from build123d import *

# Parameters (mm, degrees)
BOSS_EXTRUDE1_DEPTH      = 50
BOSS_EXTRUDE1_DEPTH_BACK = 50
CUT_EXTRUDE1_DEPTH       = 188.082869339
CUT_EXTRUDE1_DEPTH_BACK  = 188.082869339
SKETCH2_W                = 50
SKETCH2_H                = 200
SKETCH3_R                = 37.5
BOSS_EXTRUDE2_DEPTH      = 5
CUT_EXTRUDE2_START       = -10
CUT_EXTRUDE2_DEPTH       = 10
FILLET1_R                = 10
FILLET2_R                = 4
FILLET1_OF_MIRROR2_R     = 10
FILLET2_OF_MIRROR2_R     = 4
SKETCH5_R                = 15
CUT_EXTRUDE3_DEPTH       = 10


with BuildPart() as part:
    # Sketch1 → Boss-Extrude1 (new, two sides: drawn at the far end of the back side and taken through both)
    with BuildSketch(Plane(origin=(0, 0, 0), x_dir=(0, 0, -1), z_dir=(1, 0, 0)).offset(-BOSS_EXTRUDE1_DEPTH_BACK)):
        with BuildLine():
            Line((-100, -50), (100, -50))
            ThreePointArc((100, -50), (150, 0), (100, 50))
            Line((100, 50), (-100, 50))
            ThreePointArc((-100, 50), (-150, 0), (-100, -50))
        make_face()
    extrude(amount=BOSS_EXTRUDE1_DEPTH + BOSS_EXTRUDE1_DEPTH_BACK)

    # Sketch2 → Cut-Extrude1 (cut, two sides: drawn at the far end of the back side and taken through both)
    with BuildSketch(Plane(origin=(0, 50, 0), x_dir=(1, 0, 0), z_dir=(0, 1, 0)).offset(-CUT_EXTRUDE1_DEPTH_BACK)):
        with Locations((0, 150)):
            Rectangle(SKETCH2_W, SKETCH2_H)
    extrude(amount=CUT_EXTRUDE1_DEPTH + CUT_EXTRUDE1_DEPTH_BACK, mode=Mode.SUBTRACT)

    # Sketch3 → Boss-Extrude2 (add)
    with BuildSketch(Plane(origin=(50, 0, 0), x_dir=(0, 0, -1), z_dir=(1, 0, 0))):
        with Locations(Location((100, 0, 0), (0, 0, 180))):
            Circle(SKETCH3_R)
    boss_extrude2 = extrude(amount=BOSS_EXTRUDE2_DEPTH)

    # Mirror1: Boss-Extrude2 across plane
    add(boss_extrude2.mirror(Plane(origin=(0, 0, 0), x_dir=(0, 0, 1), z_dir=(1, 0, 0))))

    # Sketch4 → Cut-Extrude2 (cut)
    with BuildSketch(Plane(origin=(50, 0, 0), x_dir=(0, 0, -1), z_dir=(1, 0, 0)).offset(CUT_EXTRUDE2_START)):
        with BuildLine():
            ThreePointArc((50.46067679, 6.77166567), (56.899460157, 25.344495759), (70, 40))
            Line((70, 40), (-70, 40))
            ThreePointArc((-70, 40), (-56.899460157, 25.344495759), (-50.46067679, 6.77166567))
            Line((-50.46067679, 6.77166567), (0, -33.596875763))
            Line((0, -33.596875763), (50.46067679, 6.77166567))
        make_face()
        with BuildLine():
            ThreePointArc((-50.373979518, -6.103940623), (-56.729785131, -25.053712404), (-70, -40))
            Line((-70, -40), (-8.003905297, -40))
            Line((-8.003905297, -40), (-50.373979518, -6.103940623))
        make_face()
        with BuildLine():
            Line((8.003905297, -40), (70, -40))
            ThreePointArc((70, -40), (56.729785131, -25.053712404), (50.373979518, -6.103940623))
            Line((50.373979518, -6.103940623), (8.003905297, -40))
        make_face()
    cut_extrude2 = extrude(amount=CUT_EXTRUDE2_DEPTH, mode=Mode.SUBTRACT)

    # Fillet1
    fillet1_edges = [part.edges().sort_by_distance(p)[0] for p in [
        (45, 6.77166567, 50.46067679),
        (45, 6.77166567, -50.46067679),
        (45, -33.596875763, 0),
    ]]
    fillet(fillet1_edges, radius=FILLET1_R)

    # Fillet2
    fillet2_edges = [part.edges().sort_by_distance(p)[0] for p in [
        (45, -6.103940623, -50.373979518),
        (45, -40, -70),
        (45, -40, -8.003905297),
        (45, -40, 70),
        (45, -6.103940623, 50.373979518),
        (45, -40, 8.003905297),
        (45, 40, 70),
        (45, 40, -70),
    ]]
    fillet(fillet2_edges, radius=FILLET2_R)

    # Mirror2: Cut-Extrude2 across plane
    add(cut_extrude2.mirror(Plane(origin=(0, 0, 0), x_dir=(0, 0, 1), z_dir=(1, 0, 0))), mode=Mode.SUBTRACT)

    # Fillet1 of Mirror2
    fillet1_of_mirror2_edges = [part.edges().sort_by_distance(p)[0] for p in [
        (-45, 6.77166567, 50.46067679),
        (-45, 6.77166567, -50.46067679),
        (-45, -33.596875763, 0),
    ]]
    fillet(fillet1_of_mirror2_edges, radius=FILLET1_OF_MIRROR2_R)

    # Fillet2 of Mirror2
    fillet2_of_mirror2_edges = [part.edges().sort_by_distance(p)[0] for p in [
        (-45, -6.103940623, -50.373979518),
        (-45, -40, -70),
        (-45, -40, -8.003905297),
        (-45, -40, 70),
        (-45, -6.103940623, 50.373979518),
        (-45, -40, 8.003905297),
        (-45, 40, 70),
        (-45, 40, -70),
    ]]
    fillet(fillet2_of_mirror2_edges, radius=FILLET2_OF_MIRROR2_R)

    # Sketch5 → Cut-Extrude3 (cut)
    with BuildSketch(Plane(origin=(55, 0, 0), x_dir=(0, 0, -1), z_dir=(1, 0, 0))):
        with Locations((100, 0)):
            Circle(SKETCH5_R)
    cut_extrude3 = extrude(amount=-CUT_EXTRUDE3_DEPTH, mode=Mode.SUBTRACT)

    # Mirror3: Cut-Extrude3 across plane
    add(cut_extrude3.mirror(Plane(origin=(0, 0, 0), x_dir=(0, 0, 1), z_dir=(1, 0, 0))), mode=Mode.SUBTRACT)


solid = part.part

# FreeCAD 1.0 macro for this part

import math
import FreeCAD as App
import Part
import Sketcher
Q = App.Units.Quantity


def edges_at(feature, points):
    """Names of the edges that pass closest to the given points."""
    edges = feature.Shape.Edges
    near = lambda p: min(range(len(edges)), key=lambda i: edges[i].distToShape(Part.Vertex(*p))[0])
    return sorted({f"Edge{near(p) + 1}" for p in points})


def add_polygon(sketch, points):
    """Adds a closed chain of lines whose ends are joined by coincident constraints."""
    first, n = sketch.GeometryCount, len(points)
    for a, b in zip(points, points[1:] + points[:1]):
        sketch.addGeometry(Part.LineSegment(App.Vector(*a, 0), App.Vector(*b, 0)), False)
    for i in range(n):
        sketch.addConstraint(Sketcher.Constraint("Coincident", first + i, 2, first + (i + 1) % n, 1))

doc = App.newDocument("Part")
params = doc.addObject("Spreadsheet::Sheet", "Params")
for row, (alias, value) in enumerate([
    ("sketch1_radius", "50 mm"),
    ("sketch1_height", "200 mm"),
    ("pad1_length", "50 mm"),
    ("pad1_length2", "50 mm"),
    ("sketch2_width", "50 mm"),
    ("sketch2_height", "200 mm"),
    ("sketch3_diameter", "75 mm"),
    ("pad2_length", "5 mm"),
    ("sketch4_radius", "50 mm"),
    ("sketch4_height", "140 mm"),
    ("pocket2_length", "10 mm"),
    ("fillet_radius", "10 mm"),
    ("fillet2_radius", "4 mm"),
    ("fillet3_radius", "10 mm"),
    ("fillet4_radius", "4 mm"),
    ("sketch5_diameter", "30 mm"),
    ("pocket3_length", "10 mm"),
], start=1):
    params.set(f"A{row}", alias)
    params.set(f"B{row}", "=" + value)
    params.setAlias(f"B{row}", alias)

body = doc.addObject("PartDesign::Body", "Body")

sketch1 = doc.addObject("Sketcher::SketchObject", "Sketch")
body.addObject(sketch1)
sketch1.AttachmentSupport = (doc.YZ_Plane, [""])
sketch1.MapMode = "FlatFace"
sketch1.addGeometry(Part.LineSegment(App.Vector(-50, 100, 0), App.Vector(-50, -100, 0)), False)
sketch1.addGeometry(Part.ArcOfCircle(Part.Circle(App.Vector(0, -100, 0), App.Vector(0, 0, 1), 50), math.radians(180), math.radians(360)), False)
sketch1.addGeometry(Part.LineSegment(App.Vector(50, -100, 0), App.Vector(50, 100, 0)), False)
sketch1.addGeometry(Part.ArcOfCircle(Part.Circle(App.Vector(0, 100, 0), App.Vector(0, 0, 1), 50), math.radians(0), math.radians(180)), False)
sketch1.addConstraint(Sketcher.Constraint("Tangent", 0, 2, 1, 1))
sketch1.addConstraint(Sketcher.Constraint("Tangent", 1, 2, 2, 1))
sketch1.addConstraint(Sketcher.Constraint("Tangent", 2, 2, 3, 1))
sketch1.addConstraint(Sketcher.Constraint("Tangent", 3, 2, 0, 1))
sketch1.addConstraint(Sketcher.Constraint("Vertical", 0))
sketch1.addConstraint(Sketcher.Constraint("Vertical", 2))
sketch1.addConstraint(Sketcher.Constraint("Symmetric", 1, 3, 3, 3, -1, 1))
sketch1.addConstraint(Sketcher.Constraint("Radius", 1, Q("50 mm")))
sketch1.addConstraint(Sketcher.Constraint("DistanceY", 0, 2, 0, 1, Q("200 mm")))
sketch1.setExpression("Constraints[7]", "Params.sketch1_radius")
sketch1.setExpression("Constraints[8]", "Params.sketch1_height")
pad1 = doc.addObject("PartDesign::Pad", "Pad")
body.addObject(pad1)
pad1.Profile = sketch1
pad1.Type = "TwoLengths"
pad1.setExpression("Length", "Params.pad1_length")
pad1.setExpression("Length2", "Params.pad1_length2")

sketch2 = doc.addObject("Sketcher::SketchObject", "Sketch001")
body.addObject(sketch2)
sketch2.AttachmentSupport = (doc.XZ_Plane, [""])
sketch2.MapMode = "FlatFace"
sketch2.AttachmentOffset = App.Placement(App.Vector(0, 0, -50), App.Rotation())
add_polygon(sketch2, [(-25, -250), (-25, -50), (25, -50), (25, -250)])
sketch2.addConstraint(Sketcher.Constraint("Vertical", 0))
sketch2.addConstraint(Sketcher.Constraint("Horizontal", 1))
sketch2.addConstraint(Sketcher.Constraint("Vertical", 2))
sketch2.addConstraint(Sketcher.Constraint("Horizontal", 3))
sketch2.addConstraint(Sketcher.Constraint("DistanceX", 1, 1, 1, 2, Q("50 mm")))
sketch2.addConstraint(Sketcher.Constraint("DistanceY", 0, 1, 0, 2, Q("200 mm")))
sketch2.addConstraint(Sketcher.Constraint("DistanceX", 0, 2, -1, 1, Q("25 mm")))
sketch2.addConstraint(Sketcher.Constraint("DistanceY", 0, 2, -1, 1, Q("50 mm")))
sketch2.setExpression("Constraints[8]", "Params.sketch2_width")
sketch2.setExpression("Constraints[9]", "Params.sketch2_height")
pocket1 = doc.addObject("PartDesign::Pocket", "Pocket")
body.addObject(pocket1)
pocket1.Profile = sketch2
pocket1.Type = "ThroughAll"
pocket1.Midplane = True

sketch3 = doc.addObject("Sketcher::SketchObject", "Sketch002")
body.addObject(sketch3)
sketch3.AttachmentSupport = (doc.YZ_Plane, [""])
sketch3.MapMode = "FlatFace"
sketch3.AttachmentOffset = App.Placement(App.Vector(0, 0, 50), App.Rotation())
sketch3.addGeometry(Part.Circle(App.Vector(0, -100, 0), App.Vector(0, 0, 1), 38), False)
sketch3.addConstraint(Sketcher.Constraint("PointOnObject", 0, 3, -2))
sketch3.addConstraint(Sketcher.Constraint("Diameter", 0, Q("75 mm")))
sketch3.addConstraint(Sketcher.Constraint("DistanceY", 0, 3, -1, 1, Q("100 mm")))
sketch3.setExpression("Constraints[1]", "Params.sketch3_diameter")
pad2 = doc.addObject("PartDesign::Pad", "Pad001")
body.addObject(pad2)
pad2.Profile = sketch3
pad2.setExpression("Length", "Params.pad2_length")
doc.recompute()

mirrored = doc.addObject("PartDesign::Mirrored", "Mirrored")
body.addObject(mirrored)
mirrored.Originals = [pad2]
mirrored.MirrorPlane = (doc.YZ_Plane, [""])
body.Tip = mirrored

sketch4 = doc.addObject("Sketcher::SketchObject", "Sketch003")
body.addObject(sketch4)
sketch4.AttachmentSupport = (doc.YZ_Plane, [""])
sketch4.MapMode = "FlatFace"
sketch4.AttachmentOffset = App.Placement(App.Vector(0, 0, 40), App.Rotation())
sketch4.addGeometry(Part.ArcOfCircle(Part.Circle(App.Vector(0, -100, 0), App.Vector(0, 0, 1), 50), math.radians(37), math.radians(82)), False)
sketch4.addGeometry(Part.LineSegment(App.Vector(40, -70, 0), App.Vector(40, 70, 0)), False)
sketch4.addGeometry(Part.ArcOfCircle(Part.Circle(App.Vector(0, 100, 0), App.Vector(0, 0, 1), 50), math.radians(-82), math.radians(-37)), False)
sketch4.addGeometry(Part.LineSegment(App.Vector(7, 50, 0), App.Vector(-34, 0, 0)), False)
sketch4.addGeometry(Part.LineSegment(App.Vector(-34, 0, 0), App.Vector(7, -50, 0)), False)
sketch4.addGeometry(Part.ArcOfCircle(Part.Circle(App.Vector(0, 100, 0), App.Vector(0, 0, 1), 50), math.radians(-143), math.radians(-97)), False)
sketch4.addGeometry(Part.LineSegment(App.Vector(-40, 70, 0), App.Vector(-40, 8, 0)), False)
sketch4.addGeometry(Part.LineSegment(App.Vector(-40, 8, 0), App.Vector(-6, 50, 0)), False)
sketch4.addGeometry(Part.LineSegment(App.Vector(-40, -8, 0), App.Vector(-40, -70, 0)), False)
sketch4.addGeometry(Part.ArcOfCircle(Part.Circle(App.Vector(0, -100, 0), App.Vector(0, 0, 1), 50), math.radians(97), math.radians(143)), False)
sketch4.addGeometry(Part.LineSegment(App.Vector(-6, -50, 0), App.Vector(-40, -8, 0)), False)
sketch4.addConstraint(Sketcher.Constraint("Coincident", 0, 1, 1, 1))
sketch4.addConstraint(Sketcher.Constraint("Coincident", 1, 2, 2, 2))
sketch4.addConstraint(Sketcher.Constraint("Coincident", 2, 1, 3, 1))
sketch4.addConstraint(Sketcher.Constraint("Coincident", 3, 2, 4, 1))
sketch4.addConstraint(Sketcher.Constraint("Coincident", 4, 2, 0, 2))
sketch4.addConstraint(Sketcher.Constraint("Coincident", 5, 1, 6, 1))
sketch4.addConstraint(Sketcher.Constraint("Coincident", 6, 2, 7, 1))
sketch4.addConstraint(Sketcher.Constraint("Coincident", 7, 2, 5, 2))
sketch4.addConstraint(Sketcher.Constraint("Coincident", 8, 2, 9, 2))
sketch4.addConstraint(Sketcher.Constraint("Coincident", 9, 1, 10, 1))
sketch4.addConstraint(Sketcher.Constraint("Coincident", 10, 2, 8, 1))
sketch4.addConstraint(Sketcher.Constraint("Vertical", 1))
sketch4.addConstraint(Sketcher.Constraint("Vertical", 6))
sketch4.addConstraint(Sketcher.Constraint("Vertical", 8))
sketch4.addConstraint(Sketcher.Constraint("Coincident", 5, 3, 2, 3))
sketch4.addConstraint(Sketcher.Constraint("Coincident", 9, 3, 0, 3))
sketch4.addConstraint(Sketcher.Constraint("Equal", 0, 2))
sketch4.addConstraint(Sketcher.Constraint("Equal", 2, 5))
sketch4.addConstraint(Sketcher.Constraint("Equal", 5, 9))
sketch4.addConstraint(Sketcher.Constraint("Symmetric", 0, 3, 2, 3, -1, 1))
sketch4.addConstraint(Sketcher.Constraint("Symmetric", 1, 2, 5, 1, -2))
sketch4.addConstraint(Sketcher.Constraint("Symmetric", 6, 2, 10, 2, -1))
sketch4.addConstraint(Sketcher.Constraint("PointOnObject", 3, 2, -1))
sketch4.addConstraint(Sketcher.Constraint("Parallel", 3, 7))
sketch4.addConstraint(Sketcher.Constraint("Parallel", 4, 10))
sketch4.addConstraint(Sketcher.Constraint("Vertical", 2, 1, 4, 2))
sketch4.addConstraint(Sketcher.Constraint("Radius", 0, Q("50 mm")))
sketch4.addConstraint(Sketcher.Constraint("DistanceY", 1, 1, 1, 2, Q("140 mm")))
sketch4.addConstraint(Sketcher.Constraint("DistanceY", 0, 3, -1, 1, Q("100 mm")))
sketch4.addConstraint(Sketcher.Constraint("Distance", 7, Q("54.26017 mm")))
sketch4.addConstraint(Sketcher.Constraint("DistanceY", 6, 2, 6, 1, Q("61.996095 mm")))
sketch4.addConstraint(Sketcher.Constraint("DistanceX", 3, 2, 4, 2, Q("40.368541 mm")))
sketch4.setExpression("Constraints[26]", "Params.sketch4_radius")
sketch4.setExpression("Constraints[27]", "Params.sketch4_height")
pocket2 = doc.addObject("PartDesign::Pocket", "Pocket001")
body.addObject(pocket2)
pocket2.Profile = sketch4
pocket2.setExpression("Length", "Params.pocket2_length")
pocket2.Reversed = True
doc.recompute()

fillet = doc.addObject("PartDesign::Fillet", "Fillet")
body.addObject(fillet)
fillet.Base = (pocket2, edges_at(pocket2, [(45, 6.772, 50.461), (45, 6.772, -50.461), (45, -33.597, 0)]))
fillet.setExpression("Radius", "Params.fillet_radius")
doc.recompute()

fillet2 = doc.addObject("PartDesign::Fillet", "Fillet001")
body.addObject(fillet2)
fillet2.Base = (fillet, edges_at(fillet, [
    (45, -6.104, -50.374),
    (45, -40, -70),
    (45, -40, -8.004),
    (45, -40, 70),
    (45, -6.104, 50.374),
    (45, -40, 8.004),
    (45, 40, 70),
    (45, 40, -70),
]))
fillet2.setExpression("Radius", "Params.fillet2_radius")
doc.recompute()

mirrored2 = doc.addObject("PartDesign::Mirrored", "Mirrored001")
body.addObject(mirrored2)
mirrored2.Originals = [pocket2]
mirrored2.MirrorPlane = (doc.YZ_Plane, [""])
body.Tip = mirrored2
doc.recompute()

fillet3 = doc.addObject("PartDesign::Fillet", "Fillet002")
body.addObject(fillet3)
fillet3.Base = (mirrored2, edges_at(mirrored2, [(-45, 6.772, 50.461), (-45, 6.772, -50.461), (-45, -33.597, 0)]))
fillet3.setExpression("Radius", "Params.fillet3_radius")
doc.recompute()

fillet4 = doc.addObject("PartDesign::Fillet", "Fillet003")
body.addObject(fillet4)
fillet4.Base = (fillet3, edges_at(fillet3, [
    (-45, -6.104, -50.374),
    (-45, -40, -70),
    (-45, -40, -8.004),
    (-45, -40, 70),
    (-45, -6.104, 50.374),
    (-45, -40, 8.004),
    (-45, 40, 70),
    (-45, 40, -70),
]))
fillet4.setExpression("Radius", "Params.fillet4_radius")

sketch5 = doc.addObject("Sketcher::SketchObject", "Sketch004")
body.addObject(sketch5)
sketch5.AttachmentSupport = (doc.YZ_Plane, [""])
sketch5.MapMode = "FlatFace"
sketch5.AttachmentOffset = App.Placement(App.Vector(0, 0, 55), App.Rotation())
sketch5.addGeometry(Part.Circle(App.Vector(0, -100, 0), App.Vector(0, 0, 1), 15), False)
sketch5.addConstraint(Sketcher.Constraint("PointOnObject", 0, 3, -2))
sketch5.addConstraint(Sketcher.Constraint("Diameter", 0, Q("30 mm")))
sketch5.addConstraint(Sketcher.Constraint("DistanceY", 0, 3, -1, 1, Q("100 mm")))
sketch5.setExpression("Constraints[1]", "Params.sketch5_diameter")
pocket3 = doc.addObject("PartDesign::Pocket", "Pocket002")
body.addObject(pocket3)
pocket3.Profile = sketch5
pocket3.setExpression("Length", "Params.pocket3_length")
doc.recompute()

mirrored3 = doc.addObject("PartDesign::Mirrored", "Mirrored002")
body.addObject(mirrored3)
mirrored3.Originals = [pocket3]
mirrored3.MirrorPlane = (doc.YZ_Plane, [""])
body.Tip = mirrored3

doc.recompute()
